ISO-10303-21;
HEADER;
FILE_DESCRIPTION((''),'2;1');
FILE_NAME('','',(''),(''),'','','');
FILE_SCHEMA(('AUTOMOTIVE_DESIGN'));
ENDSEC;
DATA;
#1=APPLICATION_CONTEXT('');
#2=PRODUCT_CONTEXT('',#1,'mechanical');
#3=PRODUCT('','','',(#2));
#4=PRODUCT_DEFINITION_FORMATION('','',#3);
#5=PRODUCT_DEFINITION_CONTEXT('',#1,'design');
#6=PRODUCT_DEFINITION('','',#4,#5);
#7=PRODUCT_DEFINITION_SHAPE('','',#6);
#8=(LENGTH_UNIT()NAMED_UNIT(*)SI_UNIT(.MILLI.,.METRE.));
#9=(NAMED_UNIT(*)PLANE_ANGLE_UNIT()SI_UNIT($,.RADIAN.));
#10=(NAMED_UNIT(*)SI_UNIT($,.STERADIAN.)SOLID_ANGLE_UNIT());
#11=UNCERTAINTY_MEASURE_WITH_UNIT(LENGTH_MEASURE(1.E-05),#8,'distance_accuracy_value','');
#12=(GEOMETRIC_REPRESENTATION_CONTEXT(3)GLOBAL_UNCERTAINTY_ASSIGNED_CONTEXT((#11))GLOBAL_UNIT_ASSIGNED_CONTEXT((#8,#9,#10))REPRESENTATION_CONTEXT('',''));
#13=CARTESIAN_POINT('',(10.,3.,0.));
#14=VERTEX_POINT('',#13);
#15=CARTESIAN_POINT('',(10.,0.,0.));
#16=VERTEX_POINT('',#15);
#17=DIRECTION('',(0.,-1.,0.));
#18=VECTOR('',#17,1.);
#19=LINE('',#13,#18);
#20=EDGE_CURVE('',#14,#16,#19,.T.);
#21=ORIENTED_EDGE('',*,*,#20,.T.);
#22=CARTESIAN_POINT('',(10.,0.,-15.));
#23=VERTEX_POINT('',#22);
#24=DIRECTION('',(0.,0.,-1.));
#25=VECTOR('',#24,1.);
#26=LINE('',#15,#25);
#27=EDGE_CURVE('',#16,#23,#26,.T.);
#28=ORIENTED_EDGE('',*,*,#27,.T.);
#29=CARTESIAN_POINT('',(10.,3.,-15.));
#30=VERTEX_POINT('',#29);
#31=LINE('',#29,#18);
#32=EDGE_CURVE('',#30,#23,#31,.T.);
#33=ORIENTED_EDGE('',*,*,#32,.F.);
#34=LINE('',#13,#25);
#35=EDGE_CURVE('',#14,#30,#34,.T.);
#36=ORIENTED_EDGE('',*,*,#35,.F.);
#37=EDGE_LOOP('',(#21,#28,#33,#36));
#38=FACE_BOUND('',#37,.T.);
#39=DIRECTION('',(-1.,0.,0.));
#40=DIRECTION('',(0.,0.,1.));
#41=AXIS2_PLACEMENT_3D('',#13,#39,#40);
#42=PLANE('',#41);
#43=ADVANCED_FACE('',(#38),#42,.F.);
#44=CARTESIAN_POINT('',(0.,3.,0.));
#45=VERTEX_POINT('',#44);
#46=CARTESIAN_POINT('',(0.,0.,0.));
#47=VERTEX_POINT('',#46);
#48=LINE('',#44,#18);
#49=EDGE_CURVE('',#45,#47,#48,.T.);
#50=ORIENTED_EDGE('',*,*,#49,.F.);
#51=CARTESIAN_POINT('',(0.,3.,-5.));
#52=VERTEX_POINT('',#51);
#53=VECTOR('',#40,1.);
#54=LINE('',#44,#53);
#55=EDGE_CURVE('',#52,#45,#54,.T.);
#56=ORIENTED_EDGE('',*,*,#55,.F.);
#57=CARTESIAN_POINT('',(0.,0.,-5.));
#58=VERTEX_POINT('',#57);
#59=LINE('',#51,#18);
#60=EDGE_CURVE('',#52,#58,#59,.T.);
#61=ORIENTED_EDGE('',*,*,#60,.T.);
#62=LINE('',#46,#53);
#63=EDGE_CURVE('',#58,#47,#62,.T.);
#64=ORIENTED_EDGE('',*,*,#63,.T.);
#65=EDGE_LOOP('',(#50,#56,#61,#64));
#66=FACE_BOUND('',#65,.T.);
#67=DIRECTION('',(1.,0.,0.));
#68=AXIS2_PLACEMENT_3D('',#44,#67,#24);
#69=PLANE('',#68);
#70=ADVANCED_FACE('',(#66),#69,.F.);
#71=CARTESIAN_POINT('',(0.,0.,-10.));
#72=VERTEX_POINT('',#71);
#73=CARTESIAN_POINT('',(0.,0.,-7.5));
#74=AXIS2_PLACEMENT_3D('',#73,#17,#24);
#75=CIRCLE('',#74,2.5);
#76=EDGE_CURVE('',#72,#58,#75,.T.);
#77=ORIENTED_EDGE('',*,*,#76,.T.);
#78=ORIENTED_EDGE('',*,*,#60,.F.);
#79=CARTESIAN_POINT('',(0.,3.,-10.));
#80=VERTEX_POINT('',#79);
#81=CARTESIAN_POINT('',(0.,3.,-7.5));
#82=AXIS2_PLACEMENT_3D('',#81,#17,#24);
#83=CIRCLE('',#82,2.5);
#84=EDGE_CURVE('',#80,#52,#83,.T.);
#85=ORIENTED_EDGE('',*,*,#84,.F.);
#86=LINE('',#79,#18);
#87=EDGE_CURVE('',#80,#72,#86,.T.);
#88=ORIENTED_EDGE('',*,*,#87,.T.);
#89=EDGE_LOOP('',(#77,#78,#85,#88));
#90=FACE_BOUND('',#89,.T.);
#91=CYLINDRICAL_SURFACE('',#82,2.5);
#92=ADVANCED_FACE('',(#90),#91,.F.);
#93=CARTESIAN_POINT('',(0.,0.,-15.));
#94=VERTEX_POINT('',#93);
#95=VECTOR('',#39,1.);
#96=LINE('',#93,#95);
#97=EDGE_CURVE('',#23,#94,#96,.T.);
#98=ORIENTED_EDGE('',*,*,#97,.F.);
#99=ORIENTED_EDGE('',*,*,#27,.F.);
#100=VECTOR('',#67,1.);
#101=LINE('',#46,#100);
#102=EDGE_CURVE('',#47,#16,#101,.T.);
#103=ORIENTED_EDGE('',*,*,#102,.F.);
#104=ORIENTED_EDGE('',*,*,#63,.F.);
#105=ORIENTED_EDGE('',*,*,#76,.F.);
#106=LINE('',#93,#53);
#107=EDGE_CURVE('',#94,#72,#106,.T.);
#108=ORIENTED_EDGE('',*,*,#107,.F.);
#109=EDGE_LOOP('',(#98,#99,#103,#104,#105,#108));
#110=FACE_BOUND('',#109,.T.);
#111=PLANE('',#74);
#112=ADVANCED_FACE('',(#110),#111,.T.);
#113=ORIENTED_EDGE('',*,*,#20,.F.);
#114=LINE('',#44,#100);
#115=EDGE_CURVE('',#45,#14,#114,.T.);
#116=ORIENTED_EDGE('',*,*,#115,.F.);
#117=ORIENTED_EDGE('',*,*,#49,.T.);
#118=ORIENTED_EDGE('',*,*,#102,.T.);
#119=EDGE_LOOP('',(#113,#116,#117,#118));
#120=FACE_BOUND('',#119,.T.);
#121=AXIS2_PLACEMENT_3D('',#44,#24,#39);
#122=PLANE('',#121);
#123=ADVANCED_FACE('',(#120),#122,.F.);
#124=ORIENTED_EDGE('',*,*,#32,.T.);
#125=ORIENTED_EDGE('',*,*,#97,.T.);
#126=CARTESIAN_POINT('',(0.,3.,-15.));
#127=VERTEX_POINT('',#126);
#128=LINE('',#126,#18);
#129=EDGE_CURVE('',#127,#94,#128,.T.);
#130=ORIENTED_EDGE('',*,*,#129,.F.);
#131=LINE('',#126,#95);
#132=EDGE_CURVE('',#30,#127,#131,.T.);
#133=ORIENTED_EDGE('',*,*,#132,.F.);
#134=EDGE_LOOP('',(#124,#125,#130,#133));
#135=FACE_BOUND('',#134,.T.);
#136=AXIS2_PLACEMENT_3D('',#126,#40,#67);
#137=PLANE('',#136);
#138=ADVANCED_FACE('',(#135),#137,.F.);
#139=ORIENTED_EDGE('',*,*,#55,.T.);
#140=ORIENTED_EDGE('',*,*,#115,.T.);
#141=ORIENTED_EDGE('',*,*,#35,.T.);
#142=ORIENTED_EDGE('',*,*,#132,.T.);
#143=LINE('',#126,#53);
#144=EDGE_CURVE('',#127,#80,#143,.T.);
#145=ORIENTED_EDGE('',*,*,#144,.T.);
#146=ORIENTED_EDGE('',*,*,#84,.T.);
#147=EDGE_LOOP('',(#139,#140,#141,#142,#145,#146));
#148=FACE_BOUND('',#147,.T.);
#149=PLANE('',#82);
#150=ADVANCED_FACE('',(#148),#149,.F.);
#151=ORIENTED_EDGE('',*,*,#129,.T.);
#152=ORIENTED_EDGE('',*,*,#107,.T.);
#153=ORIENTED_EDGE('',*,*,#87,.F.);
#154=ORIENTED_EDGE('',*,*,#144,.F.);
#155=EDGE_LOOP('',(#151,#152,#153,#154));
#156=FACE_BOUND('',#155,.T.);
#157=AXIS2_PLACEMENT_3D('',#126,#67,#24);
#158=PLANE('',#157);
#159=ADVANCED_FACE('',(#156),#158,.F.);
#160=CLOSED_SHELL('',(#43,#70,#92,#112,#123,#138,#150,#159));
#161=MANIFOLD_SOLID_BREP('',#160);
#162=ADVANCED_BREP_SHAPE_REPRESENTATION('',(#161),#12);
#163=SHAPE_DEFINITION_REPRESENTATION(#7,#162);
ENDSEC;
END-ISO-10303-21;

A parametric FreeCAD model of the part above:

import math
import FreeCAD as App
import Part
import Sketcher
from FreeCAD import Vector
Q = App.Units.Quantity

doc = App.newDocument("Part")
body = doc.addObject("PartDesign::Body", "Body")

# Sketch on XZ plane
sketch1 = body.newObject("Sketcher::SketchObject", "Sketch")
sketch1.AttachmentSupport = (doc.getObject("XZ_Plane"), [""])
sketch1.MapMode = "FlatFace"
sketch1.addGeometry(Part.LineSegment(Vector(0, -15, 0), Vector(0, -10, 0)), False)
sketch1.addGeometry(Part.ArcOfCircle(Part.Circle(Vector(0, -7.5, 0), Vector(0, 0, 1), 2.5), math.radians(-90), math.radians(90)), False)
sketch1.addGeometry(Part.LineSegment(Vector(0, -5, 0), Vector(0, 0, 0)), False)
sketch1.addGeometry(Part.LineSegment(Vector(0, 0, 0), Vector(10, 0, 0)), False)
sketch1.addGeometry(Part.LineSegment(Vector(10, 0, 0), Vector(10, -15, 0)), False)
sketch1.addGeometry(Part.LineSegment(Vector(10, -15, 0), Vector(0, -15, 0)), False)
sketch1.addConstraint(Sketcher.Constraint("Coincident", 0, 2, 1, 1))
sketch1.addConstraint(Sketcher.Constraint("Coincident", 1, 2, 2, 1))
sketch1.addConstraint(Sketcher.Constraint("Coincident", 2, 2, 3, 1))
sketch1.addConstraint(Sketcher.Constraint("Coincident", 3, 2, 4, 1))
sketch1.addConstraint(Sketcher.Constraint("Coincident", 4, 2, 5, 1))
sketch1.addConstraint(Sketcher.Constraint("Coincident", 5, 2, 0, 1))
sketch1.addConstraint(Sketcher.Constraint("Vertical", 0))
sketch1.addConstraint(Sketcher.Constraint("Vertical", 2))
sketch1.addConstraint(Sketcher.Constraint("Horizontal", 3))
sketch1.addConstraint(Sketcher.Constraint("Vertical", 4))
sketch1.addConstraint(Sketcher.Constraint("Horizontal", 5))
sketch1.addConstraint(Sketcher.Constraint("Coincident", 2, 2, -1, 1))
sketch1.addConstraint(Sketcher.Constraint("PointOnObject", 1, 3, -2))
sketch1.addConstraint(Sketcher.Constraint("PointOnObject", 0, 2, -2))
sketch1.addConstraint(Sketcher.Constraint("Equal", 0, 2))
sketch1.addConstraint(Sketcher.Constraint("Radius", 1, Q("2.5 mm")))
sketch1.addConstraint(Sketcher.Constraint("DistanceX", 3, 1, 3, 2, Q("10 mm")))
sketch1.addConstraint(Sketcher.Constraint("DistanceY", 0, 1, 0, 2, Q("5 mm")))
pad1 = body.newObject("PartDesign::Pad", "Pad")
pad1.Profile = sketch1
pad1.Length = 3
pad1.Reversed = True

doc.recompute()
